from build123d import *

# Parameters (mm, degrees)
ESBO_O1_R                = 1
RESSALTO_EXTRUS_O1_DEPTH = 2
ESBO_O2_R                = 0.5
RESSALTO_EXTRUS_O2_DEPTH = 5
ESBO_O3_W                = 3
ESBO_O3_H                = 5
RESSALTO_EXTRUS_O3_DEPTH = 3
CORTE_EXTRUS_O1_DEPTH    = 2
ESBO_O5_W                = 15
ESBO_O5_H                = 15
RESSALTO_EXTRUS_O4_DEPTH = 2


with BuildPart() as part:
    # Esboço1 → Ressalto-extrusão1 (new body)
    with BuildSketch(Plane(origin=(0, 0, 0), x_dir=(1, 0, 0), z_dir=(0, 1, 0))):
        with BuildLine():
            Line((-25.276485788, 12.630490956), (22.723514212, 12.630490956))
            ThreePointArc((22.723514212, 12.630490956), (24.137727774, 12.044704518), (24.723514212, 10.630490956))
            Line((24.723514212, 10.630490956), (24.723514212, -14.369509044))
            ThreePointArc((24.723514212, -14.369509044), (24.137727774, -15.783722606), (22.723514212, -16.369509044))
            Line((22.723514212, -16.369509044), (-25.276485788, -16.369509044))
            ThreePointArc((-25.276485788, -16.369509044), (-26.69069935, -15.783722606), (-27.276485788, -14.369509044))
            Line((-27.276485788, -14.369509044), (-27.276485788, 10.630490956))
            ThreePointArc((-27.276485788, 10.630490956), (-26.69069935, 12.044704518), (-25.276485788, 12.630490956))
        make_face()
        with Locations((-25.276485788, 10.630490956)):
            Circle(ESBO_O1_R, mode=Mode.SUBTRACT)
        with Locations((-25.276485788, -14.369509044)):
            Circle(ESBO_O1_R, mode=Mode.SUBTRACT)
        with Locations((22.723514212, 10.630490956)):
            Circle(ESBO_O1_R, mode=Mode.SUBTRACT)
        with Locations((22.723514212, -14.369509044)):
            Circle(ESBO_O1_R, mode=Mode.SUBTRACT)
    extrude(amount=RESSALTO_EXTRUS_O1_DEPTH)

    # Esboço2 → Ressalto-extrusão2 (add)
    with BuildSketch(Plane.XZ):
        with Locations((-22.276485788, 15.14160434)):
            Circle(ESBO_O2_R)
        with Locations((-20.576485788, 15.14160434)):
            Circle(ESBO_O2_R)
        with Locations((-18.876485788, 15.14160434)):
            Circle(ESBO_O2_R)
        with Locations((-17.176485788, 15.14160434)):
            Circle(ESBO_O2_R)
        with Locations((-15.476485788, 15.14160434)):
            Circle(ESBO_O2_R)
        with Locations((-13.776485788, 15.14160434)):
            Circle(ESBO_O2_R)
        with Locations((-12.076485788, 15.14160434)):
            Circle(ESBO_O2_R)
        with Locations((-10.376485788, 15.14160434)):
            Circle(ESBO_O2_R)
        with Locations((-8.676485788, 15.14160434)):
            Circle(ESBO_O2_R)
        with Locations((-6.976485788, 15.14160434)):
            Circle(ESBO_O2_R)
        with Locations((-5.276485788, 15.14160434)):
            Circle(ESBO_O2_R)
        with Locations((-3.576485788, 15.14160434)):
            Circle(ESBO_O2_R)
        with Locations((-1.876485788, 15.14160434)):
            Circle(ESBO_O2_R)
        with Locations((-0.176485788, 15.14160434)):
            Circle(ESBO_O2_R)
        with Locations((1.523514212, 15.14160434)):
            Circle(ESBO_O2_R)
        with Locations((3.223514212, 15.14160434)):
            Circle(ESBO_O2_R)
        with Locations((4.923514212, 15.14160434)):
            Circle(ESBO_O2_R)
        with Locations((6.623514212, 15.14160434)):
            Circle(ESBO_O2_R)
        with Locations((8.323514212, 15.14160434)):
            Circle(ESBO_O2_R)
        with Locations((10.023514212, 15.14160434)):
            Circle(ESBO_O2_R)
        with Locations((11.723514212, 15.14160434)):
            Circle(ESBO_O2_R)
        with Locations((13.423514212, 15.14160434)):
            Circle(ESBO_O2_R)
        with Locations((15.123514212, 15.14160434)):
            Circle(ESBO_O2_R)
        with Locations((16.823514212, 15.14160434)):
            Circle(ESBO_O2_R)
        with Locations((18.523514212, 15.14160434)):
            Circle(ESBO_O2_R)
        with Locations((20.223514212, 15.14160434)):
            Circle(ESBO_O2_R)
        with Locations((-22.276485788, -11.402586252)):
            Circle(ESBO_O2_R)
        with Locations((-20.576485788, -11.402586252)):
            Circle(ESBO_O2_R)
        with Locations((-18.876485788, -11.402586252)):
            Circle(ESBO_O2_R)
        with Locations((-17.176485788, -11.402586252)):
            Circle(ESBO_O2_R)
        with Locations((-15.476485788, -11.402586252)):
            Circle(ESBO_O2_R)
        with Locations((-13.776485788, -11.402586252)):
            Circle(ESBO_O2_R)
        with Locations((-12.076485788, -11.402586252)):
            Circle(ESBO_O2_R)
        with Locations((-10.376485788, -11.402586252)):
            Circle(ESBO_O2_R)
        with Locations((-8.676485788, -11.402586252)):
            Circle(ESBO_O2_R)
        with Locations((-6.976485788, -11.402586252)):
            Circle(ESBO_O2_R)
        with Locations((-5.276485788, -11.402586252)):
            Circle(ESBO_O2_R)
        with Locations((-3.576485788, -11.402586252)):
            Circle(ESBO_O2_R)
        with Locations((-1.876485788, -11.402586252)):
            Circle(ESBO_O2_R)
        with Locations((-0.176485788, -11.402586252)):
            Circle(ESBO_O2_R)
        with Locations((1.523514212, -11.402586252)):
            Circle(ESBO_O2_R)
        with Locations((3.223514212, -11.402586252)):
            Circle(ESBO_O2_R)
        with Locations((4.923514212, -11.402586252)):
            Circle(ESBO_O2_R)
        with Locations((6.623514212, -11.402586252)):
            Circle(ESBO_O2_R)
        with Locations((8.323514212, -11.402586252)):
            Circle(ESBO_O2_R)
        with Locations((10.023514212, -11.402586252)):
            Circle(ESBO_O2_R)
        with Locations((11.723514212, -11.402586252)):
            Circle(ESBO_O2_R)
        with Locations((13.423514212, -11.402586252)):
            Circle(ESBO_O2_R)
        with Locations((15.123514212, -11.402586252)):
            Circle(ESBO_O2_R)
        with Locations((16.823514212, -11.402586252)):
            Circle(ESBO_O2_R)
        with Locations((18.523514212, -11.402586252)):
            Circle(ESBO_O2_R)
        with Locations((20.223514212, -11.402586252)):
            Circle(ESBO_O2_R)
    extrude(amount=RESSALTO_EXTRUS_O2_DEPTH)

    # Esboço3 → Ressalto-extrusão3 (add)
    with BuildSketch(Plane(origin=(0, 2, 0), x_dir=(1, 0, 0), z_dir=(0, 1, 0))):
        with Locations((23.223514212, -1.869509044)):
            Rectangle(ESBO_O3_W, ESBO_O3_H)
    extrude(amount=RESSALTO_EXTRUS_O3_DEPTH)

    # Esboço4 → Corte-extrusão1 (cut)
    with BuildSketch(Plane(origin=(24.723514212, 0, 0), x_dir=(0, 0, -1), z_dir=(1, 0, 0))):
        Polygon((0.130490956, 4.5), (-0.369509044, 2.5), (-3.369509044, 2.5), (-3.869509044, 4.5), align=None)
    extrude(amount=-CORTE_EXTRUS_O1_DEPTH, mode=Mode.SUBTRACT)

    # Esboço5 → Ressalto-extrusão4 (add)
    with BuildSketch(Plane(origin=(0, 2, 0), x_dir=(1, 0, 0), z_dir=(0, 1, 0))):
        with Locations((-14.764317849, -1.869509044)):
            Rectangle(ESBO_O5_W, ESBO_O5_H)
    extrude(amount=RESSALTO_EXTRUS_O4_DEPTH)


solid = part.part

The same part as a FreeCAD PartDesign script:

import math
import FreeCAD as App
import Part
import Sketcher
from FreeCAD import Vector


def add_polygon(sketch, points):
    """Adds a closed chain of lines whose ends are joined by coincident constraints."""
    first, n = sketch.GeometryCount, len(points)
    for a, b in zip(points, points[1:] + points[:1]):
        sketch.addGeometry(Part.LineSegment(App.Vector(*a, 0), App.Vector(*b, 0)), False)
    for i in range(n):
        sketch.addConstraint(Sketcher.Constraint("Coincident", first + i, 2, first + (i + 1) % n, 1))

doc = App.newDocument("Part")
body = doc.addObject("PartDesign::Body", "Body")

# Sketch on XZ plane
sketch1 = doc.addObject("Sketcher::SketchObject", "Sketch")
body.addObject(sketch1)
sketch1.AttachmentSupport = (doc.XZ_Plane, [""])
sketch1.MapMode = "FlatFace"
sketch1.addGeometry([
    Part.LineSegment(Vector(22.7, -12.6, 0), Vector(-25.3, -12.6, 0)),  # 0
    Part.ArcOfCircle(Part.Circle(Vector(-25.3, -10.6, 0), Vector(0, 0, 1), 2), math.radians(-180), math.radians(-90)),  # 1
    Part.LineSegment(Vector(-27.3, -10.6, 0), Vector(-27.3, 14.4, 0)),  # 2
    Part.ArcOfCircle(Part.Circle(Vector(-25.3, 14.4, 0), Vector(0, 0, 1), 2), math.radians(90), math.radians(180)),  # 3
    Part.LineSegment(Vector(-25.3, 16.4, 0), Vector(22.7, 16.4, 0)),  # 4
    Part.ArcOfCircle(Part.Circle(Vector(22.7, 14.4, 0), Vector(0, 0, 1), 2), math.radians(0), math.radians(90)),  # 5
    Part.LineSegment(Vector(24.7, 14.4, 0), Vector(24.7, -10.6, 0)),  # 6
    Part.ArcOfCircle(Part.Circle(Vector(22.7, -10.6, 0), Vector(0, 0, 1), 2), math.radians(-90), math.radians(0)),  # 7
    Part.Circle(Vector(22.7, 14.4, 0), Vector(0, 0, 1), 1),  # 8
    Part.Circle(Vector(-25.3, 14.4, 0), Vector(0, 0, 1), 1),  # 9
    Part.Circle(Vector(22.7, -10.6, 0), Vector(0, 0, 1), 1),  # 10
    Part.Circle(Vector(-25.3, -10.6, 0), Vector(0, 0, 1), 1),  # 11
], False)
sketch1.addConstraint([
    Sketcher.Constraint("Tangent", 0, 2, 1, 2),
    Sketcher.Constraint("Tangent", 1, 1, 2, 1),
    Sketcher.Constraint("Tangent", 2, 2, 3, 2),
    Sketcher.Constraint("Tangent", 3, 1, 4, 1),
    Sketcher.Constraint("Tangent", 4, 2, 5, 2),
    Sketcher.Constraint("Tangent", 5, 1, 6, 1),
    Sketcher.Constraint("Tangent", 6, 2, 7, 2),
    Sketcher.Constraint("Tangent", 7, 1, 0, 1),
    Sketcher.Constraint("Horizontal", 0),
    Sketcher.Constraint("Vertical", 2),
    Sketcher.Constraint("Horizontal", 4),
    Sketcher.Constraint("Vertical", 6),
    Sketcher.Constraint("Coincident", 8, 3, 5, 3),
    Sketcher.Constraint("Coincident", 9, 3, 3, 3),
    Sketcher.Constraint("Coincident", 10, 3, 7, 3),
    Sketcher.Constraint("Coincident", 11, 3, 1, 3),
    Sketcher.Constraint("Equal", 1, 3),
    Sketcher.Constraint("Equal", 3, 5),
    Sketcher.Constraint("Equal", 5, 7),
    Sketcher.Constraint("Equal", 8, 9),
    Sketcher.Constraint("Equal", 9, 10),
    Sketcher.Constraint("Equal", 10, 11),
    Sketcher.Constraint("Diameter", 8, 2.0),
    Sketcher.Constraint("Radius", 1, 2.0),
    Sketcher.Constraint("DistanceX", 0, 2, 0, 1, 48.0),
    Sketcher.Constraint("DistanceY", 2, 1, 2, 2, 25.0),
    Sketcher.Constraint("DistanceY", 1, 3, -1, 1, 10.630491),
    Sketcher.Constraint("DistanceX", 1, 3, -1, 1, 25.276486),
])
pad1 = doc.addObject("PartDesign::Pad", "Pad")
body.addObject(pad1)
pad1.Profile = sketch1
pad1.Length = 2
pad1.Reversed = True

# Sketch on XZ plane
sketch2 = doc.addObject("Sketcher::SketchObject", "Sketch001")
body.addObject(sketch2)
sketch2.AttachmentSupport = (doc.XZ_Plane, [""])
sketch2.MapMode = "FlatFace"
sketch2.addGeometry([
    Part.Circle(Vector(-22.3, 15.1, 0), Vector(0, 0, 1), 0.5),  # 0
    Part.Circle(Vector(-20.6, 15.1, 0), Vector(0, 0, 1), 0.5),  # 1
    Part.Circle(Vector(-18.9, 15.1, 0), Vector(0, 0, 1), 0.5),  # 2
    Part.Circle(Vector(-17.2, 15.1, 0), Vector(0, 0, 1), 0.5),  # 3
    Part.Circle(Vector(-15.5, 15.1, 0), Vector(0, 0, 1), 0.5),  # 4
    Part.Circle(Vector(-13.8, 15.1, 0), Vector(0, 0, 1), 0.5),  # 5
    Part.Circle(Vector(-12.1, 15.1, 0), Vector(0, 0, 1), 0.5),  # 6
    Part.Circle(Vector(-10.4, 15.1, 0), Vector(0, 0, 1), 0.5),  # 7
    Part.Circle(Vector(-8.7, 15.1, 0), Vector(0, 0, 1), 0.5),  # 8
    Part.Circle(Vector(-7, 15.1, 0), Vector(0, 0, 1), 0.5),  # 9
    Part.Circle(Vector(-5.3, 15.1, 0), Vector(0, 0, 1), 0.5),  # 10
    Part.Circle(Vector(-3.6, 15.1, 0), Vector(0, 0, 1), 0.5),  # 11
    Part.Circle(Vector(-1.9, 15.1, 0), Vector(0, 0, 1), 0.5),  # 12
    Part.Circle(Vector(-0.2, 15.1, 0), Vector(0, 0, 1), 0.5),  # 13
    Part.Circle(Vector(1.5, 15.1, 0), Vector(0, 0, 1), 0.5),  # 14
    Part.Circle(Vector(3.2, 15.1, 0), Vector(0, 0, 1), 0.5),  # 15
    Part.Circle(Vector(4.9, 15.1, 0), Vector(0, 0, 1), 0.5),  # 16
    Part.Circle(Vector(6.6, 15.1, 0), Vector(0, 0, 1), 0.5),  # 17
    Part.Circle(Vector(8.3, 15.1, 0), Vector(0, 0, 1), 0.5),  # 18
    Part.Circle(Vector(10, 15.1, 0), Vector(0, 0, 1), 0.5),  # 19
    Part.Circle(Vector(11.7, 15.1, 0), Vector(0, 0, 1), 0.5),  # 20
    Part.Circle(Vector(13.4, 15.1, 0), Vector(0, 0, 1), 0.5),  # 21
    Part.Circle(Vector(15.1, 15.1, 0), Vector(0, 0, 1), 0.5),  # 22
    Part.Circle(Vector(16.8, 15.1, 0), Vector(0, 0, 1), 0.5),  # 23
    Part.Circle(Vector(18.5, 15.1, 0), Vector(0, 0, 1), 0.5),  # 24
    Part.Circle(Vector(20.2, 15.1, 0), Vector(0, 0, 1), 0.5),  # 25
    Part.Circle(Vector(-22.3, -11.4, 0), Vector(0, 0, 1), 0.5),  # 26
    Part.Circle(Vector(-20.6, -11.4, 0), Vector(0, 0, 1), 0.5),  # 27
    Part.Circle(Vector(-18.9, -11.4, 0), Vector(0, 0, 1), 0.5),  # 28
    Part.Circle(Vector(-17.2, -11.4, 0), Vector(0, 0, 1), 0.5),  # 29
    Part.Circle(Vector(-15.5, -11.4, 0), Vector(0, 0, 1), 0.5),  # 30
    Part.Circle(Vector(-13.8, -11.4, 0), Vector(0, 0, 1), 0.5),  # 31
    Part.Circle(Vector(-12.1, -11.4, 0), Vector(0, 0, 1), 0.5),  # 32
    Part.Circle(Vector(-10.4, -11.4, 0), Vector(0, 0, 1), 0.5),  # 33
    Part.Circle(Vector(-8.7, -11.4, 0), Vector(0, 0, 1), 0.5),  # 34
    Part.Circle(Vector(-7, -11.4, 0), Vector(0, 0, 1), 0.5),  # 35
    Part.Circle(Vector(-5.3, -11.4, 0), Vector(0, 0, 1), 0.5),  # 36
    Part.Circle(Vector(-3.6, -11.4, 0), Vector(0, 0, 1), 0.5),  # 37
    Part.Circle(Vector(-1.9, -11.4, 0), Vector(0, 0, 1), 0.5),  # 38
    Part.Circle(Vector(-0.2, -11.4, 0), Vector(0, 0, 1), 0.5),  # 39
    Part.Circle(Vector(1.5, -11.4, 0), Vector(0, 0, 1), 0.5),  # 40
    Part.Circle(Vector(3.2, -11.4, 0), Vector(0, 0, 1), 0.5),  # 41
    Part.Circle(Vector(4.9, -11.4, 0), Vector(0, 0, 1), 0.5),  # 42
    Part.Circle(Vector(6.6, -11.4, 0), Vector(0, 0, 1), 0.5),  # 43
    Part.Circle(Vector(8.3, -11.4, 0), Vector(0, 0, 1), 0.5),  # 44
    Part.Circle(Vector(10, -11.4, 0), Vector(0, 0, 1), 0.5),  # 45
    Part.Circle(Vector(11.7, -11.4, 0), Vector(0, 0, 1), 0.5),  # 46
    Part.Circle(Vector(13.4, -11.4, 0), Vector(0, 0, 1), 0.5),  # 47
    Part.Circle(Vector(15.1, -11.4, 0), Vector(0, 0, 1), 0.5),  # 48
    Part.Circle(Vector(16.8, -11.4, 0), Vector(0, 0, 1), 0.5),  # 49
    Part.Circle(Vector(18.5, -11.4, 0), Vector(0, 0, 1), 0.5),  # 50
    Part.Circle(Vector(20.2, -11.4, 0), Vector(0, 0, 1), 0.5),  # 51
], False)
sketch2.addConstraint([
    Sketcher.Constraint("Equal", 0, 1),
    Sketcher.Constraint("Equal", 1, 2),
    Sketcher.Constraint("Equal", 2, 3),
    Sketcher.Constraint("Equal", 3, 4),
    Sketcher.Constraint("Equal", 4, 5),
    Sketcher.Constraint("Equal", 5, 6),
    Sketcher.Constraint("Equal", 6, 7),
    Sketcher.Constraint("Equal", 7, 8),
    Sketcher.Constraint("Equal", 8, 9),
    Sketcher.Constraint("Equal", 9, 10),
    Sketcher.Constraint("Equal", 10, 11),
    Sketcher.Constraint("Equal", 11, 12),
    Sketcher.Constraint("Equal", 12, 13),
    Sketcher.Constraint("Equal", 13, 14),
    Sketcher.Constraint("Equal", 14, 15),
    Sketcher.Constraint("Equal", 15, 16),
    Sketcher.Constraint("Equal", 16, 17),
    Sketcher.Constraint("Equal", 17, 18),
    Sketcher.Constraint("Equal", 18, 19),
    Sketcher.Constraint("Equal", 19, 20),
    Sketcher.Constraint("Equal", 20, 21),
    Sketcher.Constraint("Equal", 21, 22),
    Sketcher.Constraint("Equal", 22, 23),
    Sketcher.Constraint("Equal", 23, 24),
    Sketcher.Constraint("Equal", 24, 25),
    Sketcher.Constraint("Equal", 25, 26),
    Sketcher.Constraint("Equal", 26, 27),
    Sketcher.Constraint("Equal", 27, 28),
    Sketcher.Constraint("Equal", 28, 29),
    Sketcher.Constraint("Equal", 29, 30),
    Sketcher.Constraint("Equal", 30, 31),
    Sketcher.Constraint("Equal", 31, 32),
    Sketcher.Constraint("Equal", 32, 33),
    Sketcher.Constraint("Equal", 33, 34),
    Sketcher.Constraint("Equal", 34, 35),
    Sketcher.Constraint("Equal", 35, 36),
    Sketcher.Constraint("Equal", 36, 37),
    Sketcher.Constraint("Equal", 37, 38),
    Sketcher.Constraint("Equal", 38, 39),
    Sketcher.Constraint("Equal", 39, 40),
    Sketcher.Constraint("Equal", 40, 41),
    Sketcher.Constraint("Equal", 41, 42),
    Sketcher.Constraint("Equal", 42, 43),
    Sketcher.Constraint("Equal", 43, 44),
    Sketcher.Constraint("Equal", 44, 45),
    Sketcher.Constraint("Equal", 45, 46),
    Sketcher.Constraint("Equal", 46, 47),
    Sketcher.Constraint("Equal", 47, 48),
    Sketcher.Constraint("Equal", 48, 49),
    Sketcher.Constraint("Equal", 49, 50),
    Sketcher.Constraint("Equal", 50, 51),
    Sketcher.Constraint("Horizontal", 0, 3, 1, 3),
    Sketcher.Constraint("Horizontal", 1, 3, 2, 3),
    Sketcher.Constraint("Horizontal", 2, 3, 3, 3),
    Sketcher.Constraint("Horizontal", 3, 3, 4, 3),
    Sketcher.Constraint("Horizontal", 4, 3, 5, 3),
    Sketcher.Constraint("Horizontal", 5, 3, 6, 3),
    Sketcher.Constraint("Horizontal", 6, 3, 7, 3),
    Sketcher.Constraint("Horizontal", 7, 3, 8, 3),
    Sketcher.Constraint("Horizontal", 8, 3, 9, 3),
    Sketcher.Constraint("Horizontal", 9, 3, 10, 3),
    Sketcher.Constraint("Horizontal", 10, 3, 11, 3),
    Sketcher.Constraint("Horizontal", 11, 3, 12, 3),
    Sketcher.Constraint("Horizontal", 12, 3, 13, 3),
    Sketcher.Constraint("Horizontal", 13, 3, 14, 3),
    Sketcher.Constraint("Horizontal", 14, 3, 15, 3),
    Sketcher.Constraint("Horizontal", 15, 3, 16, 3),
    Sketcher.Constraint("Horizontal", 16, 3, 17, 3),
    Sketcher.Constraint("Horizontal", 17, 3, 18, 3),
    Sketcher.Constraint("Horizontal", 18, 3, 19, 3),
    Sketcher.Constraint("Horizontal", 19, 3, 20, 3),
    Sketcher.Constraint("Horizontal", 20, 3, 21, 3),
    Sketcher.Constraint("Horizontal", 21, 3, 22, 3),
    Sketcher.Constraint("Horizontal", 22, 3, 23, 3),
    Sketcher.Constraint("Horizontal", 23, 3, 24, 3),
    Sketcher.Constraint("Horizontal", 24, 3, 25, 3),
    Sketcher.Constraint("Horizontal", 26, 3, 27, 3),
    Sketcher.Constraint("Horizontal", 27, 3, 28, 3),
    Sketcher.Constraint("Horizontal", 28, 3, 29, 3),
    Sketcher.Constraint("Horizontal", 29, 3, 30, 3),
    Sketcher.Constraint("Horizontal", 30, 3, 31, 3),
    Sketcher.Constraint("Horizontal", 31, 3, 32, 3),
    Sketcher.Constraint("Horizontal", 32, 3, 33, 3),
    Sketcher.Constraint("Horizontal", 33, 3, 34, 3),
    Sketcher.Constraint("Horizontal", 34, 3, 35, 3),
    Sketcher.Constraint("Horizontal", 35, 3, 36, 3),
    Sketcher.Constraint("Horizontal", 36, 3, 37, 3),
    Sketcher.Constraint("Horizontal", 37, 3, 38, 3),
    Sketcher.Constraint("Horizontal", 38, 3, 39, 3),
    Sketcher.Constraint("Horizontal", 39, 3, 40, 3),
    Sketcher.Constraint("Horizontal", 40, 3, 41, 3),
    Sketcher.Constraint("Horizontal", 41, 3, 42, 3),
    Sketcher.Constraint("Horizontal", 42, 3, 43, 3),
    Sketcher.Constraint("Horizontal", 43, 3, 44, 3),
    Sketcher.Constraint("Horizontal", 44, 3, 45, 3),
    Sketcher.Constraint("Horizontal", 45, 3, 46, 3),
    Sketcher.Constraint("Horizontal", 46, 3, 47, 3),
    Sketcher.Constraint("Horizontal", 47, 3, 48, 3),
    Sketcher.Constraint("Horizontal", 48, 3, 49, 3),
    Sketcher.Constraint("Horizontal", 49, 3, 50, 3),
    Sketcher.Constraint("Horizontal", 50, 3, 51, 3),
    Sketcher.Constraint("Vertical", 0, 3, 26, 3),
    Sketcher.Constraint("Vertical", 1, 3, 27, 3),
    Sketcher.Constraint("Vertical", 2, 3, 28, 3),
    Sketcher.Constraint("Vertical", 3, 3, 29, 3),
    Sketcher.Constraint("Vertical", 4, 3, 30, 3),
    Sketcher.Constraint("Vertical", 5, 3, 31, 3),
    Sketcher.Constraint("Vertical", 6, 3, 32, 3),
    Sketcher.Constraint("Vertical", 7, 3, 33, 3),
    Sketcher.Constraint("Vertical", 8, 3, 34, 3),
    Sketcher.Constraint("Vertical", 9, 3, 35, 3),
    Sketcher.Constraint("Vertical", 10, 3, 36, 3),
    Sketcher.Constraint("Vertical", 11, 3, 37, 3),
    Sketcher.Constraint("Vertical", 12, 3, 38, 3),
    Sketcher.Constraint("Vertical", 13, 3, 39, 3),
    Sketcher.Constraint("Vertical", 14, 3, 40, 3),
    Sketcher.Constraint("Vertical", 15, 3, 41, 3),
    Sketcher.Constraint("Vertical", 16, 3, 42, 3),
    Sketcher.Constraint("Vertical", 17, 3, 43, 3),
    Sketcher.Constraint("Vertical", 18, 3, 44, 3),
    Sketcher.Constraint("Vertical", 19, 3, 45, 3),
    Sketcher.Constraint("Vertical", 20, 3, 46, 3),
    Sketcher.Constraint("Vertical", 21, 3, 47, 3),
    Sketcher.Constraint("Vertical", 22, 3, 48, 3),
    Sketcher.Constraint("Vertical", 23, 3, 49, 3),
    Sketcher.Constraint("Vertical", 24, 3, 50, 3),
    Sketcher.Constraint("Vertical", 25, 3, 51, 3),
    Sketcher.Constraint("Diameter", 0, 1.0),
    Sketcher.Constraint("DistanceX", 0, 3, 1, 3, 1.7),
    Sketcher.Constraint("DistanceX", 1, 3, 2, 3, 1.7),
    Sketcher.Constraint("DistanceX", 2, 3, 3, 3, 1.7),
    Sketcher.Constraint("DistanceX", 3, 3, 4, 3, 1.7),
    Sketcher.Constraint("DistanceX", 4, 3, 5, 3, 1.7),
    Sketcher.Constraint("DistanceX", 5, 3, 6, 3, 1.7),
    Sketcher.Constraint("DistanceX", 6, 3, 7, 3, 1.7),
    Sketcher.Constraint("DistanceX", 7, 3, 8, 3, 1.7),
    Sketcher.Constraint("DistanceX", 8, 3, 9, 3, 1.7),
    Sketcher.Constraint("DistanceX", 9, 3, 10, 3, 1.7),
    Sketcher.Constraint("DistanceX", 10, 3, 11, 3, 1.7),
    Sketcher.Constraint("DistanceX", 11, 3, 12, 3, 1.7),
    Sketcher.Constraint("DistanceX", 12, 3, 13, 3, 1.7),
    Sketcher.Constraint("DistanceX", 13, 3, 14, 3, 1.7),
    Sketcher.Constraint("DistanceX", 14, 3, 15, 3, 1.7),
    Sketcher.Constraint("DistanceX", 15, 3, 16, 3, 1.7),
    Sketcher.Constraint("DistanceX", 16, 3, 17, 3, 1.7),
    Sketcher.Constraint("DistanceX", 17, 3, 18, 3, 1.7),
    Sketcher.Constraint("DistanceX", 18, 3, 19, 3, 1.7),
    Sketcher.Constraint("DistanceX", 19, 3, 20, 3, 1.7),
    Sketcher.Constraint("DistanceX", 20, 3, 21, 3, 1.7),
    Sketcher.Constraint("DistanceX", 21, 3, 22, 3, 1.7),
    Sketcher.Constraint("DistanceX", 22, 3, 23, 3, 1.7),
    Sketcher.Constraint("DistanceX", 23, 3, 24, 3, 1.7),
    Sketcher.Constraint("DistanceX", 24, 3, 25, 3, 1.7),
    Sketcher.Constraint("DistanceY", 26, 3, 0, 3, 26.544191),
    Sketcher.Constraint("DistanceX", 0, 3, -1, 1, 22.276486),
    Sketcher.Constraint("DistanceY", -1, 1, 0, 3, 15.141604),
])
pad2 = doc.addObject("PartDesign::Pad", "Pad001")
body.addObject(pad2)
pad2.Profile = sketch2
pad2.Length = 5

# Sketch on XZ plane
sketch3 = doc.addObject("Sketcher::SketchObject", "Sketch002")
body.addObject(sketch3)
sketch3.AttachmentSupport = (doc.XZ_Plane, [""])
sketch3.MapMode = "FlatFace"
sketch3.AttachmentOffset = App.Placement(Vector(0, 0, -2), App.Rotation())
add_polygon(sketch3, [(21.7, -0.6), (21.7, 4.4), (24.7, 4.4), (24.7, -0.6)])  # lines 0-3
sketch3.addConstraint([
    Sketcher.Constraint("Vertical", 0),
    Sketcher.Constraint("Horizontal", 1),
    Sketcher.Constraint("Vertical", 2),
    Sketcher.Constraint("Horizontal", 3),
    Sketcher.Constraint("DistanceX", 1, 1, 1, 2, 3.0),
    Sketcher.Constraint("DistanceY", 0, 1, 0, 2, 5.0),
    Sketcher.Constraint("DistanceY", -1, 1, 0, 2, 4.369509),
    Sketcher.Constraint("DistanceX", -1, 1, 0, 2, 21.723514),
])
pad3 = doc.addObject("PartDesign::Pad", "Pad002")
body.addObject(pad3)
pad3.Profile = sketch3
pad3.Length = 3
pad3.Reversed = True

# Sketch on YZ plane
sketch4 = doc.addObject("Sketcher::SketchObject", "Sketch003")
body.addObject(sketch4)
sketch4.AttachmentSupport = (doc.YZ_Plane, [""])
sketch4.MapMode = "FlatFace"
sketch4.AttachmentOffset = App.Placement(Vector(0, 0, 24.723514), App.Rotation())
add_polygon(sketch4, [(2.5, 0.4), (4.5, -0.1), (4.5, 3.9), (2.5, 3.4)])  # lines 0-3
sketch4.addConstraint([
    Sketcher.Constraint("Vertical", 1),
    Sketcher.Constraint("Vertical", 3),
    Sketcher.Constraint("Equal", 0, 2),
    Sketcher.Constraint("DistanceY", 1, 1, 1, 2, 4.0),
    Sketcher.Constraint("DistanceY", 3, 2, 3, 1, 3.0),
    Sketcher.Constraint("DistanceX", 2, 2, 1, 2, 2.0),
    Sketcher.Constraint("DistanceX", -1, 1, 0, 2, 4.5),
    Sketcher.Constraint("DistanceY", 0, 2, -1, 1, 0.130491),
])
pocket1 = doc.addObject("PartDesign::Pocket", "Pocket")
body.addObject(pocket1)
pocket1.Profile = sketch4
pocket1.Length = 2

# Sketch on XZ plane
sketch5 = doc.addObject("Sketcher::SketchObject", "Sketch004")
body.addObject(sketch5)
sketch5.AttachmentSupport = (doc.XZ_Plane, [""])
sketch5.MapMode = "FlatFace"
sketch5.AttachmentOffset = App.Placement(Vector(0, 0, -2), App.Rotation())
add_polygon(sketch5, [(-22, -6), (-22, 9), (-7, 9), (-7, -6)])  # lines 0-3
sketch5.addConstraint([
    Sketcher.Constraint("Vertical", 0),
    Sketcher.Constraint("Horizontal", 1),
    Sketcher.Constraint("Vertical", 2),
    Sketcher.Constraint("Horizontal", 3),
    Sketcher.Constraint("Equal", 3, 0),
    Sketcher.Constraint("DistanceX", 1, 1, 1, 2, 15.0),
    Sketcher.Constraint("DistanceY", -1, 1, 0, 2, 9.369509),
    Sketcher.Constraint("DistanceX", 0, 2, -1, 1, 22.264318),
])
pad4 = doc.addObject("PartDesign::Pad", "Pad003")
body.addObject(pad4)
pad4.Profile = sketch5
pad4.Length = 2
pad4.Reversed = True

doc.recompute()
